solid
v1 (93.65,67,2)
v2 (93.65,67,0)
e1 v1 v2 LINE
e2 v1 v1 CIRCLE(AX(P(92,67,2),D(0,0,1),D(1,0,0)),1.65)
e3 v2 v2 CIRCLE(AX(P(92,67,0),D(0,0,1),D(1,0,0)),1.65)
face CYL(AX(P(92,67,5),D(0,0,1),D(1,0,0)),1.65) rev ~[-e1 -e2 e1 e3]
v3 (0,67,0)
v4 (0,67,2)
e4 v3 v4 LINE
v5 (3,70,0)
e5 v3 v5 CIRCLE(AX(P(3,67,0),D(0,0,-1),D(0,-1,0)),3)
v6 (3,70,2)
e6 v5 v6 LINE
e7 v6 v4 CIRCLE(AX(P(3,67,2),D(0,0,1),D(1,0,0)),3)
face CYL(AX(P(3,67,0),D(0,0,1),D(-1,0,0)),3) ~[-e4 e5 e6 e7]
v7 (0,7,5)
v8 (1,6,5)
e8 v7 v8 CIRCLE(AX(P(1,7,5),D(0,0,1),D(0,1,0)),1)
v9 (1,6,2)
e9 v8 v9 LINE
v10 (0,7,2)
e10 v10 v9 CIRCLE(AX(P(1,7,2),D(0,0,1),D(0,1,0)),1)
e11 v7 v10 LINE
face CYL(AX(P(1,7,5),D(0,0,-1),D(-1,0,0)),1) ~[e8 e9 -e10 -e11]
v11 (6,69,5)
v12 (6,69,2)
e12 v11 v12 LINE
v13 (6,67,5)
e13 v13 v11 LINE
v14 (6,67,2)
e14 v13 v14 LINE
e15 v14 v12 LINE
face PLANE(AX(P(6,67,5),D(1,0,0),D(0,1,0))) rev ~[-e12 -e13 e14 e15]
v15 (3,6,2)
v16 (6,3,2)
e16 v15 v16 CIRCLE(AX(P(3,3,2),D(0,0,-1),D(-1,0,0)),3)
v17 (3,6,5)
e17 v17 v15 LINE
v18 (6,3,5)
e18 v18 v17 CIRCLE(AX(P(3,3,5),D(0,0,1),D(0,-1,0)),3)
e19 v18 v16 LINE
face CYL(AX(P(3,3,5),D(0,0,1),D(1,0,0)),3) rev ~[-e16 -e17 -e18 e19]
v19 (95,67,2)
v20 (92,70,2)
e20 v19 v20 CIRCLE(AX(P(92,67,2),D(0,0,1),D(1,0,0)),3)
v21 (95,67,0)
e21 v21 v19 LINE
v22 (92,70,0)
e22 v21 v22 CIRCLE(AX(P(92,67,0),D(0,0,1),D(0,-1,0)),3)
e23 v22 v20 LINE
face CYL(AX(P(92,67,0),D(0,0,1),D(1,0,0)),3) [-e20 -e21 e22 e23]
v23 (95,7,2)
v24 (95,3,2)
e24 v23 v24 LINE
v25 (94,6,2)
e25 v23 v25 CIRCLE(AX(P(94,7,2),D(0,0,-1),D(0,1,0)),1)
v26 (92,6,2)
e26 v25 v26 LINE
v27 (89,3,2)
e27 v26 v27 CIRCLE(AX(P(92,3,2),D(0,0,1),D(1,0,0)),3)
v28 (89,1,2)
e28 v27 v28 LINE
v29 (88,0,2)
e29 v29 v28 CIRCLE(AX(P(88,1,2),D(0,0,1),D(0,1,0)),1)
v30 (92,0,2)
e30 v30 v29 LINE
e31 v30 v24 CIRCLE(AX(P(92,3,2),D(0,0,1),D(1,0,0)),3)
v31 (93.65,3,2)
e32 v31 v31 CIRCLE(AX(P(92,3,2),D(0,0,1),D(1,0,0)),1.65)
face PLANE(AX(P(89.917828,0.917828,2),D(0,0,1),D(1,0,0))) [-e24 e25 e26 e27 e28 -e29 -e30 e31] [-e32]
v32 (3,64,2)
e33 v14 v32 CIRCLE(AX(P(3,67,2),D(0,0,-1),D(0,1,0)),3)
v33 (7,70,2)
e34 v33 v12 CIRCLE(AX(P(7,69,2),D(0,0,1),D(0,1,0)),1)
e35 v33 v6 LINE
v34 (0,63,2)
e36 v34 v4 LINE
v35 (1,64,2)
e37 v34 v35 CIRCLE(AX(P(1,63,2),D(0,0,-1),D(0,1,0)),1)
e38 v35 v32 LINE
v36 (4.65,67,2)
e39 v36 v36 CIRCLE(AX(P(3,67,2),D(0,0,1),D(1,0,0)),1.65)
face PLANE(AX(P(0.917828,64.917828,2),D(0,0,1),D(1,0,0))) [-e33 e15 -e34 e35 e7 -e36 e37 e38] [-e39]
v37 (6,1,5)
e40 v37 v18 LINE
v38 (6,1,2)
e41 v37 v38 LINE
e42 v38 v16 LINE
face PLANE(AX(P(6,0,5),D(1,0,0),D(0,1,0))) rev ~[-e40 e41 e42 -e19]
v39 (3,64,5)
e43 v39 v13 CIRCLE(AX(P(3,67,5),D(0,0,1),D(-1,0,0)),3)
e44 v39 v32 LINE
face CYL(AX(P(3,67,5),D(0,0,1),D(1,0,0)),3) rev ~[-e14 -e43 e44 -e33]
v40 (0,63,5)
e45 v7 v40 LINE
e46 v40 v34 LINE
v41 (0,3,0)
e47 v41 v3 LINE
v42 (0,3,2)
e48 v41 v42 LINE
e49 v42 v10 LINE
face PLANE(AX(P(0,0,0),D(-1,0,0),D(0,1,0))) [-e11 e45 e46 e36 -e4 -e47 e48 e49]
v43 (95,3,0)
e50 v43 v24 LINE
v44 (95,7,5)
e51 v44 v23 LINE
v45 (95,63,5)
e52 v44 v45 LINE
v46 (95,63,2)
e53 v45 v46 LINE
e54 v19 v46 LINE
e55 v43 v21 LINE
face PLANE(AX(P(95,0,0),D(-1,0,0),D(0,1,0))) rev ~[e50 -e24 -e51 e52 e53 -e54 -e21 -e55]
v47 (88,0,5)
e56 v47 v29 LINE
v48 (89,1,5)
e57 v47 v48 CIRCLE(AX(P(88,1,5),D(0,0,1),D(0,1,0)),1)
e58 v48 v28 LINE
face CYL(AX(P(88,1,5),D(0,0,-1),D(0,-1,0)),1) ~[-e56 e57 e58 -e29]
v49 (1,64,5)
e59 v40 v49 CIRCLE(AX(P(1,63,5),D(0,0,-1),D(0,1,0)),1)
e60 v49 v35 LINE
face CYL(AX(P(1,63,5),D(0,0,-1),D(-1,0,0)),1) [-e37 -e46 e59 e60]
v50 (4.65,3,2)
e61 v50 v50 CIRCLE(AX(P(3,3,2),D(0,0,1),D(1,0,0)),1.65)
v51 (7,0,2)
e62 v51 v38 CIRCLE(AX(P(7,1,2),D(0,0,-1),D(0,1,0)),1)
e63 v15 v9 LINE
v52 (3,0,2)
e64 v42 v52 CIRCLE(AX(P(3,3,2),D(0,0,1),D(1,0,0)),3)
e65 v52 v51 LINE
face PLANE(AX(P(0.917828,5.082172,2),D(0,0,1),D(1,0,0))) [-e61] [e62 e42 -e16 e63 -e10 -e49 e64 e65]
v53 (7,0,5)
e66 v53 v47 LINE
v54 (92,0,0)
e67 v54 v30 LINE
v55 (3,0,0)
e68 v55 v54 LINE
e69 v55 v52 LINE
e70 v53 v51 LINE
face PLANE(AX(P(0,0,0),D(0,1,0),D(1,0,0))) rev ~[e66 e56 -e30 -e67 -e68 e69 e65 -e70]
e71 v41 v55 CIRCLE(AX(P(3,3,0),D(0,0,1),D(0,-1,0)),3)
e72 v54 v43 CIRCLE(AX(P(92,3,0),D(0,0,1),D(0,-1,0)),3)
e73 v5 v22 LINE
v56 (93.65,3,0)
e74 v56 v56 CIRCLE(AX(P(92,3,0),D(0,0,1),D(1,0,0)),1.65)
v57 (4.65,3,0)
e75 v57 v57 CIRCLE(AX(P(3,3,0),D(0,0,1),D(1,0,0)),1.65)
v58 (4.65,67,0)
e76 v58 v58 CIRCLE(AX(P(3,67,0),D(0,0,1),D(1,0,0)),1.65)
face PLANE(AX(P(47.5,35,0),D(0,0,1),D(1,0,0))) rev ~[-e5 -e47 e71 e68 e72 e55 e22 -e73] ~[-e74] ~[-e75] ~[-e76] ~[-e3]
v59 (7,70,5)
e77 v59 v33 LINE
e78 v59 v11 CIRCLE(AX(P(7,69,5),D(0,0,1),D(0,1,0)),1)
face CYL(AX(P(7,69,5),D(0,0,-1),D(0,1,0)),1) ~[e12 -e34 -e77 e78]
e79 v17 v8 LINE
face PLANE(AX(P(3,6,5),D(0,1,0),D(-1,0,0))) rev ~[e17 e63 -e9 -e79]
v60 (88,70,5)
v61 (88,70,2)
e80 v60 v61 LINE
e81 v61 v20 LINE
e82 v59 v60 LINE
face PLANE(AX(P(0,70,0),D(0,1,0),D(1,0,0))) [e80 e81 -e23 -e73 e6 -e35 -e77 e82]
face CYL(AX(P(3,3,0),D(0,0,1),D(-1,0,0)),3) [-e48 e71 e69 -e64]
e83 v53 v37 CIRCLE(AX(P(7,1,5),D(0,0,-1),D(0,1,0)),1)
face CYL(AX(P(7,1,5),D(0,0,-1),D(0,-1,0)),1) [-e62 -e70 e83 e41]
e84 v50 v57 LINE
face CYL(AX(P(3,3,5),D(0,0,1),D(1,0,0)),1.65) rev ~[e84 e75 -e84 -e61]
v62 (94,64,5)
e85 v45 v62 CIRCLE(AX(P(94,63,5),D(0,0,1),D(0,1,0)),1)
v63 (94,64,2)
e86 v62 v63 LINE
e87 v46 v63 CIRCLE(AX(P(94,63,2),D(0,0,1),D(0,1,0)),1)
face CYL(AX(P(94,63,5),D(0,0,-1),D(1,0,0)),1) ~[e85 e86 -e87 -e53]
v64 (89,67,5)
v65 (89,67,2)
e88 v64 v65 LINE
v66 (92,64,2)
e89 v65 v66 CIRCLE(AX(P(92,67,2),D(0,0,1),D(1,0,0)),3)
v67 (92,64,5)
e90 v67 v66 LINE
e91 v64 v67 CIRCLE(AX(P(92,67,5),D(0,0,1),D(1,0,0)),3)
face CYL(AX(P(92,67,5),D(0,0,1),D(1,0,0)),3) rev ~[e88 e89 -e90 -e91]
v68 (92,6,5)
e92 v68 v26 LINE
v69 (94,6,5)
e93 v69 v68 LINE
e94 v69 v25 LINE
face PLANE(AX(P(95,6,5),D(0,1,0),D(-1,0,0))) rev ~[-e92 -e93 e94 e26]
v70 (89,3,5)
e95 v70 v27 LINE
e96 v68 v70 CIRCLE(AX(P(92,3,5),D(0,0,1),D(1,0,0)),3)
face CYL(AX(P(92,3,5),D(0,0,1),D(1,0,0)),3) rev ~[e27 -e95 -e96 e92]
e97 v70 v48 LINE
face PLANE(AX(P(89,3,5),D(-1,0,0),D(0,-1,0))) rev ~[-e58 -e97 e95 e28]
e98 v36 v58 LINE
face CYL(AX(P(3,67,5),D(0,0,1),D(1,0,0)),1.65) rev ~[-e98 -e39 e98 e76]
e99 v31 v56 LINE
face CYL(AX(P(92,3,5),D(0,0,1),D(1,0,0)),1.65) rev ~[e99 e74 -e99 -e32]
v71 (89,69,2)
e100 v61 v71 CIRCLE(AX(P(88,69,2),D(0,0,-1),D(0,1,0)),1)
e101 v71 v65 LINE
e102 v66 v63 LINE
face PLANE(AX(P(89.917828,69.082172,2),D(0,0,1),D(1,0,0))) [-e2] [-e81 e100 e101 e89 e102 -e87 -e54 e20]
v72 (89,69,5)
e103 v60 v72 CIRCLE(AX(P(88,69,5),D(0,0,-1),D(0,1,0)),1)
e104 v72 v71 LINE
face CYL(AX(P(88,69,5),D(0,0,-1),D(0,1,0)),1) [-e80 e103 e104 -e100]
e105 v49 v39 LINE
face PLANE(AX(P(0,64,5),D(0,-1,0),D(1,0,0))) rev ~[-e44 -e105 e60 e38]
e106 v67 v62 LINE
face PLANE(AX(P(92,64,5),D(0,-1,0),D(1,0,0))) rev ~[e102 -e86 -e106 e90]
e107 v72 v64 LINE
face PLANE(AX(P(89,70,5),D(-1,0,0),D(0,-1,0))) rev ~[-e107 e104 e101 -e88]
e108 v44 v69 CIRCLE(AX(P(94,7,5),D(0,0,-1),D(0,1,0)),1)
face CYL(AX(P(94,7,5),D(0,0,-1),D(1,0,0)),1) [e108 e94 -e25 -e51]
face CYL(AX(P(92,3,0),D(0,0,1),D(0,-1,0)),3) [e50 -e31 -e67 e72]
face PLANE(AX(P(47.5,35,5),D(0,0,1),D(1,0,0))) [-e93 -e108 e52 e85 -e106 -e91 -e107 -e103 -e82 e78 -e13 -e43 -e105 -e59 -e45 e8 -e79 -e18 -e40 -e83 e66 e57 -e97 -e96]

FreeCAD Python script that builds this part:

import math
import FreeCAD as App
import Part
import Sketcher

V = App.Vector


def edges_at(feature, points):
    """Names of the edges that pass closest to the given points."""
    edges = feature.Shape.Edges
    near = lambda p: min(range(len(edges)), key=lambda i: edges[i].distToShape(Part.Vertex(*p))[0])
    return sorted({f"Edge{near(p) + 1}" for p in points})


def add_polygon(sketch, points):
    """Adds a closed chain of lines whose ends are joined by coincident constraints."""
    first, n = sketch.GeometryCount, len(points)
    for a, b in zip(points, points[1:] + points[:1]):
        sketch.addGeometry(Part.LineSegment(App.Vector(*a, 0), App.Vector(*b, 0)), False)
    for i in range(n):
        sketch.addConstraint(Sketcher.Constraint("Coincident", first + i, 2, first + (i + 1) % n, 1))

doc = App.newDocument("Part")
body = doc.addObject("PartDesign::Body", "Body")

# Sketch on XY plane
sketch1 = body.newObject("Sketcher::SketchObject", "Sketch")
sketch1.AttachmentSupport = (doc.getObject("XY_Plane"), [""])
sketch1.MapMode = "FlatFace"
add_polygon(sketch1, [(0, 70), (0, 0), (95, 0), (95, 70)])  # lines 0-3
sketch1.addConstraint([
    Sketcher.Constraint("Vertical", 0),
    Sketcher.Constraint("Horizontal", 1),
    Sketcher.Constraint("Vertical", 2),
    Sketcher.Constraint("Horizontal", 3),
    Sketcher.Constraint("Coincident", 0, 2, -1, 1),
    Sketcher.Constraint("DistanceX", 1, 1, 1, 2, 95.0),
    Sketcher.Constraint("DistanceY", 0, 2, 0, 1, 70.0),
])
pad1 = body.newObject("PartDesign::Pad", "Pad")
pad1.Profile = sketch1
pad1.Length = 5
doc.recompute()

fillet = body.newObject("PartDesign::Fillet", "Fillet")
fillet.Base = (pad1, edges_at(pad1, [
    (0, 70, 2.5),
    (95, 70, 2.5),
    (95, 0, 2.5),
    (0, 0, 2.5),
]))
fillet.Radius = 3

# Sketch on XY plane
sketch2 = body.newObject("Sketcher::SketchObject", "Sketch001")
sketch2.AttachmentSupport = (doc.getObject("XY_Plane"), [""])
sketch2.MapMode = "FlatFace"
sketch2.AttachmentOffset = App.Placement(V(0, 0, 5), App.Rotation())
sketch2.addGeometry([
    Part.Circle(V(3, 67, 0), V(0, 0, 1), 1.6),
    Part.Circle(V(92, 67, 0), V(0, 0, 1), 1.6),
    Part.Circle(V(3, 3, 0), V(0, 0, 1), 1.6),
    Part.Circle(V(92, 3, 0), V(0, 0, 1), 1.6),
], False)
sketch2.addConstraint([
    Sketcher.Constraint("Equal", 0, 1),
    Sketcher.Constraint("Equal", 1, 2),
    Sketcher.Constraint("Equal", 2, 3),
    Sketcher.Constraint("Horizontal", 0, 3, 1, 3),
    Sketcher.Constraint("Horizontal", 2, 3, 3, 3),
    Sketcher.Constraint("Vertical", 0, 3, 2, 3),
    Sketcher.Constraint("Vertical", 1, 3, 3, 3),
    Sketcher.Constraint("Diameter", 0, 3.3),
    Sketcher.Constraint("DistanceX", -1, 1, 0, 3, 3.0),
    Sketcher.Constraint("DistanceY", -1, 1, 0, 3, 67.0),
    Sketcher.Constraint("DistanceX", -1, 1, 1, 3, 92.0),
    Sketcher.Constraint("DistanceY", -1, 1, 2, 3, 3.0),
])
pocket1 = body.newObject("PartDesign::Pocket", "Pocket")
pocket1.Profile = sketch2
pocket1.Length = 5

# Sketch on XY plane
sketch3 = body.newObject("Sketcher::SketchObject", "Sketch002")
sketch3.AttachmentSupport = (doc.getObject("XY_Plane"), [""])
sketch3.MapMode = "FlatFace"
sketch3.AttachmentOffset = App.Placement(V(0, 0, 5), App.Rotation())
sketch3.addGeometry([
    Part.Circle(V(3, 67, 0), V(0, 0, 1), 3),
    Part.Circle(V(92, 67, 0), V(0, 0, 1), 3),
    Part.Circle(V(3, 3, 0), V(0, 0, 1), 3),
    Part.Circle(V(92, 3, 0), V(0, 0, 1), 3),
], False)
sketch3.addConstraint([
    Sketcher.Constraint("Equal", 0, 1),
    Sketcher.Constraint("Equal", 1, 2),
    Sketcher.Constraint("Equal", 2, 3),
    Sketcher.Constraint("Horizontal", 0, 3, 1, 3),
    Sketcher.Constraint("Horizontal", 2, 3, 3, 3),
    Sketcher.Constraint("Vertical", 0, 3, 2, 3),
    Sketcher.Constraint("Vertical", 1, 3, 3, 3),
    Sketcher.Constraint("Diameter", 0, 6.0),
    Sketcher.Constraint("DistanceX", -1, 1, 0, 3, 3.0),
    Sketcher.Constraint("DistanceY", -1, 1, 0, 3, 67.0),
    Sketcher.Constraint("DistanceX", -1, 1, 1, 3, 92.0),
    Sketcher.Constraint("DistanceY", -1, 1, 2, 3, 3.0),
])
pocket2 = body.newObject("PartDesign::Pocket", "Pocket001")
pocket2.Profile = sketch3
pocket2.Length = 3

# Sketch on XY plane
sketch4 = body.newObject("Sketcher::SketchObject", "Sketch003")
sketch4.AttachmentSupport = (doc.getObject("XY_Plane"), [""])
sketch4.MapMode = "FlatFace"
sketch4.AttachmentOffset = App.Placement(V(0, 0, 5), App.Rotation())
sketch4.addGeometry([
    Part.LineSegment(V(95, 3, 0), V(95, 6, 0)),  # 0
    Part.LineSegment(V(95, 6, 0), V(92, 6, 0)),  # 1
    Part.ArcOfCircle(Part.Circle(V(92, 3, 0), V(0, 0, 1), 3), math.radians(0), math.radians(90)),  # 2
    Part.LineSegment(V(89, 3, 0), V(89, 0, 0)),  # 3
    Part.LineSegment(V(89, 0, 0), V(92, 0, 0)),  # 4
    Part.ArcOfCircle(Part.Circle(V(92, 3, 0), V(0, 0, 1), 3), math.radians(180), math.radians(270)),  # 5
    Part.LineSegment(V(6, 0, 0), V(6, 3, 0)),  # 6
    Part.ArcOfCircle(Part.Circle(V(3, 3, 0), V(0, 0, 1), 3), math.radians(-90), math.radians(0)),  # 7
    Part.LineSegment(V(3, 0, 0), V(6, 0, 0)),  # 8
    Part.LineSegment(V(3, 6, 0), V(0, 6, 0)),  # 9
    Part.LineSegment(V(0, 6, 0), V(0, 3, 0)),  # 10
    Part.ArcOfCircle(Part.Circle(V(3, 3, 0), V(0, 0, 1), 3), math.radians(90), math.radians(180)),  # 11
    Part.LineSegment(V(0, 64, 0), V(3, 64, 0)),  # 12
    Part.ArcOfCircle(Part.Circle(V(3, 67, 0), V(0, 0, 1), 3), math.radians(180), math.radians(270)),  # 13
    Part.LineSegment(V(0, 67, 0), V(0, 64, 0)),  # 14
    Part.ArcOfCircle(Part.Circle(V(3, 67, 0), V(0, 0, 1), 3), math.radians(0), math.radians(90)),  # 15
    Part.LineSegment(V(6, 67, 0), V(6, 70, 0)),  # 16
    Part.LineSegment(V(6, 70, 0), V(3, 70, 0)),  # 17
    Part.LineSegment(V(92, 70, 0), V(89, 70, 0)),  # 18
    Part.LineSegment(V(89, 70, 0), V(89, 67, 0)),  # 19
    Part.ArcOfCircle(Part.Circle(V(92, 67, 0), V(0, 0, 1), 3), math.radians(90), math.radians(180)),  # 20
    Part.ArcOfCircle(Part.Circle(V(92, 67, 0), V(0, 0, 1), 3), math.radians(-90), math.radians(0)),  # 21
    Part.LineSegment(V(92, 64, 0), V(95, 64, 0)),  # 22
    Part.LineSegment(V(95, 64, 0), V(95, 67, 0)),  # 23
], False)
sketch4.addConstraint([
    Sketcher.Constraint("Coincident", 0, 2, 1, 1),
    Sketcher.Constraint("Tangent", 1, 2, 2, 2),
    Sketcher.Constraint("Tangent", 2, 1, 0, 1),
    Sketcher.Constraint("Coincident", 3, 2, 4, 1),
    Sketcher.Constraint("Tangent", 4, 2, 5, 2),
    Sketcher.Constraint("Tangent", 5, 1, 3, 1),
    Sketcher.Constraint("Tangent", 6, 2, 7, 2),
    Sketcher.Constraint("Tangent", 7, 1, 8, 1),
    Sketcher.Constraint("Coincident", 8, 2, 6, 1),
    Sketcher.Constraint("Coincident", 9, 2, 10, 1),
    Sketcher.Constraint("Tangent", 10, 2, 11, 2),
    Sketcher.Constraint("Tangent", 11, 1, 9, 1),
    Sketcher.Constraint("Tangent", 12, 2, 13, 2),
    Sketcher.Constraint("Tangent", 13, 1, 14, 1),
    Sketcher.Constraint("Coincident", 14, 2, 12, 1),
    Sketcher.Constraint("Tangent", 15, 1, 16, 1),
    Sketcher.Constraint("Coincident", 16, 2, 17, 1),
    Sketcher.Constraint("Tangent", 17, 2, 15, 2),
    Sketcher.Constraint("Coincident", 18, 2, 19, 1),
    Sketcher.Constraint("Tangent", 19, 2, 20, 2),
    Sketcher.Constraint("Tangent", 20, 1, 18, 1),
    Sketcher.Constraint("Tangent", 21, 1, 22, 1),
    Sketcher.Constraint("Coincident", 22, 2, 23, 1),
    Sketcher.Constraint("Tangent", 23, 2, 21, 2),
    Sketcher.Constraint("Vertical", 0),
    Sketcher.Constraint("Horizontal", 1),
    Sketcher.Constraint("Vertical", 3),
    Sketcher.Constraint("Horizontal", 4),
    Sketcher.Constraint("Vertical", 6),
    Sketcher.Constraint("Horizontal", 8),
    Sketcher.Constraint("Horizontal", 9),
    Sketcher.Constraint("Vertical", 10),
    Sketcher.Constraint("Horizontal", 12),
    Sketcher.Constraint("Vertical", 14),
    Sketcher.Constraint("Vertical", 16),
    Sketcher.Constraint("Horizontal", 17),
    Sketcher.Constraint("Horizontal", 18),
    Sketcher.Constraint("Vertical", 19),
    Sketcher.Constraint("Horizontal", 22),
    Sketcher.Constraint("Vertical", 23),
    Sketcher.Constraint("Coincident", 5, 3, 2, 3),
    Sketcher.Constraint("Coincident", 11, 3, 7, 3),
    Sketcher.Constraint("Coincident", 15, 3, 13, 3),
    Sketcher.Constraint("Coincident", 21, 3, 20, 3),
    Sketcher.Constraint("Equal", 2, 5),
    Sketcher.Constraint("Equal", 5, 7),
    Sketcher.Constraint("Equal", 7, 11),
    Sketcher.Constraint("Equal", 11, 13),
    Sketcher.Constraint("Equal", 13, 15),
    Sketcher.Constraint("Equal", 15, 20),
    Sketcher.Constraint("Equal", 20, 21),
    Sketcher.Constraint("PointOnObject", 3, 2, -1),
    Sketcher.Constraint("PointOnObject", 7, 1, -1),
    Sketcher.Constraint("PointOnObject", 9, 2, -2),
    Sketcher.Constraint("PointOnObject", 13, 1, -2),
    Sketcher.Constraint("Horizontal", 15, 3, 20, 3),
    Sketcher.Constraint("Vertical", 5, 3, 20, 3),
    Sketcher.Constraint("Radius", 2, 3.0),
    Sketcher.Constraint("DistanceX", -1, 1, 2, 3, 92.0),
    Sketcher.Constraint("DistanceY", -1, 1, 13, 3, 67.0),
])
pocket3 = body.newObject("PartDesign::Pocket", "Pocket002")
pocket3.Profile = sketch4
pocket3.Length = 3
doc.recompute()

fillet2 = body.newObject("PartDesign::Fillet", "Fillet001")
fillet2.Base = (pocket3, edges_at(pocket3, [
    (0, 64, 3.5),
    (0, 6, 3.5),
    (6, 0, 3.5),
    (89, 0, 3.5),
    (95, 64, 3.5),
    (89, 70, 3.5),
    (6, 70, 3.5),
    (95, 6, 3.5),
]))
fillet2.Radius = 1

doc.recompute()
